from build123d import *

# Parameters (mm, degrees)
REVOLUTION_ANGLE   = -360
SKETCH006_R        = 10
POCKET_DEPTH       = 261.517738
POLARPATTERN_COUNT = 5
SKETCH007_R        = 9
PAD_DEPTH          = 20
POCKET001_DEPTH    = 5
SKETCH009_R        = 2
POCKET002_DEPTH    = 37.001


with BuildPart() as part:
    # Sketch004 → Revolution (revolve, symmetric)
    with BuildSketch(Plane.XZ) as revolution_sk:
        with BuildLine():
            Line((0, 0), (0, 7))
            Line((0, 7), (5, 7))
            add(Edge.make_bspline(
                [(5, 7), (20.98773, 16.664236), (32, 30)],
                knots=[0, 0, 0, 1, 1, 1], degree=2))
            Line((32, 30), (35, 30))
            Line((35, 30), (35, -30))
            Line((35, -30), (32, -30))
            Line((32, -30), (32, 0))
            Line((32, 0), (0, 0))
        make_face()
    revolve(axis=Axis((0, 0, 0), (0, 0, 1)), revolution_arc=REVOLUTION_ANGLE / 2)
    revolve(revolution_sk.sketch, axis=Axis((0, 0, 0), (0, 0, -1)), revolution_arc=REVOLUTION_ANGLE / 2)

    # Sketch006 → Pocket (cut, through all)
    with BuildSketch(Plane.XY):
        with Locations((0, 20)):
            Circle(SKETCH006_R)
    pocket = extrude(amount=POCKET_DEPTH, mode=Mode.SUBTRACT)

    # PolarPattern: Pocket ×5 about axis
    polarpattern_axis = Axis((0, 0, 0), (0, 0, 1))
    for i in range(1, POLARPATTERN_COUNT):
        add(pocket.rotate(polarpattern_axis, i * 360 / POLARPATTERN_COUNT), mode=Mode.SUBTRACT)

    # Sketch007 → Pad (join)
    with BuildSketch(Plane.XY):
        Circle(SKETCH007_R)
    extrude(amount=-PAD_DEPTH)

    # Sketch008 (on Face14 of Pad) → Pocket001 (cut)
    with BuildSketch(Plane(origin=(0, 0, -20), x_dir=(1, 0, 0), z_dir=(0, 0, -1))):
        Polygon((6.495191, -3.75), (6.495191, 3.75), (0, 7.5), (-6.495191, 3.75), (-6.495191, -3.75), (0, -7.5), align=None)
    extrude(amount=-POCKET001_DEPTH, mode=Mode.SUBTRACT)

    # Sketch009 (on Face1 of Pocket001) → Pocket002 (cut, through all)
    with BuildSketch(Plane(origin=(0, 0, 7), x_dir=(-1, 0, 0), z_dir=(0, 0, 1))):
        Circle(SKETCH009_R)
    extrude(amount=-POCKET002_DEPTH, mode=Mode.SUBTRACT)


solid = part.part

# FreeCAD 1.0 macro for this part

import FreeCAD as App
import Part
import Sketcher

V = App.Vector
Q = App.Units.Quantity

doc = App.newDocument("Part")
body = doc.addObject("PartDesign::Body", "Body")

sketch1 = body.newObject("Sketcher::SketchObject", "Sketch")
sketch1.AttachmentSupport = (doc.getObject("XZ_Plane"), [""])
sketch1.MapMode = "FlatFace"
sketch1.addGeometry([
    Part.LineSegment(V(0, 7, 0), V(0, 0, 0)),
    Part.LineSegment(V(0, 0, 0), V(32, 0, 0)),
    Part.LineSegment(V(32, 0, 0), V(32, -30, 0)),
    Part.LineSegment(V(32, -30, 0), V(35, -30, 0)),
    Part.LineSegment(V(35, -30, 0), V(35, 30, 0)),
    Part.LineSegment(V(35, 30, 0), V(32, 30, 0)),
    Part.BSplineCurve([V(5, 7, 0), V(20.98773, 16.664236, 0), V(32, 30, 0)], [3, 3], [0, 1], False, 2, [1, 1, 1], False),
    Part.LineSegment(V(5, 7, 0), V(0, 7, 0)),
], False)
sketch1.addConstraint([
    Sketcher.Constraint("Block", 6),
    Sketcher.Constraint("Coincident", 0, 2, 1, 1),
    Sketcher.Constraint("Coincident", 1, 2, 2, 1),
    Sketcher.Constraint("Coincident", 2, 2, 3, 1),
    Sketcher.Constraint("Coincident", 3, 2, 4, 1),
    Sketcher.Constraint("Coincident", 4, 2, 5, 1),
    Sketcher.Constraint("Coincident", 5, 2, 6, 2),
    Sketcher.Constraint("Coincident", 6, 1, 7, 1),
    Sketcher.Constraint("Coincident", 7, 2, 0, 1),
    Sketcher.Constraint("Vertical", 0),
    Sketcher.Constraint("Horizontal", 1),
    Sketcher.Constraint("Vertical", 2),
    Sketcher.Constraint("Horizontal", 3),
    Sketcher.Constraint("Vertical", 4),
    Sketcher.Constraint("Horizontal", 5),
    Sketcher.Constraint("Horizontal", 7),
    Sketcher.Constraint("Coincident", 0, 2, -1, 1),
    Sketcher.Constraint("Symmetric", 2, 2, 5, 2, -1),
    Sketcher.Constraint("DistanceX", 3, 1, 3, 2, Q("3 mm")),
])
revolution = body.newObject("PartDesign::Revolution", "Revolution")
revolution.Profile = sketch1
revolution.ReferenceAxis = (sketch1, ["V_Axis"])
revolution.Angle = 180
revolution.Reversed = True

sketch2 = body.newObject("Sketcher::SketchObject", "Sketch001")
sketch2.AttachmentSupport = (doc.getObject("XZ_Plane"), [""])
sketch2.MapMode = "FlatFace"
sketch2.addGeometry([
    Part.LineSegment(V(0, 7, 0), V(0, 0, 0)),
    Part.LineSegment(V(0, 0, 0), V(32, 0, 0)),
    Part.LineSegment(V(32, 0, 0), V(32, -30, 0)),
    Part.LineSegment(V(32, -30, 0), V(35, -30, 0)),
    Part.LineSegment(V(35, -30, 0), V(35, 30, 0)),
    Part.LineSegment(V(35, 30, 0), V(32, 30, 0)),
    Part.BSplineCurve([V(5, 7, 0), V(20.98773, 16.664236, 0), V(32, 30, 0)], [3, 3], [0, 1], False, 2, [1, 1, 1], False),
    Part.LineSegment(V(5, 7, 0), V(0, 7, 0)),
], False)
sketch2.addConstraint([
    Sketcher.Constraint("Block", 6),
    Sketcher.Constraint("Coincident", 0, 2, 1, 1),
    Sketcher.Constraint("Coincident", 1, 2, 2, 1),
    Sketcher.Constraint("Coincident", 2, 2, 3, 1),
    Sketcher.Constraint("Coincident", 3, 2, 4, 1),
    Sketcher.Constraint("Coincident", 4, 2, 5, 1),
    Sketcher.Constraint("Coincident", 5, 2, 6, 2),
    Sketcher.Constraint("Coincident", 6, 1, 7, 1),
    Sketcher.Constraint("Coincident", 7, 2, 0, 1),
    Sketcher.Constraint("Vertical", 0),
    Sketcher.Constraint("Horizontal", 1),
    Sketcher.Constraint("Vertical", 2),
    Sketcher.Constraint("Horizontal", 3),
    Sketcher.Constraint("Vertical", 4),
    Sketcher.Constraint("Horizontal", 5),
    Sketcher.Constraint("Horizontal", 7),
    Sketcher.Constraint("Coincident", 0, 2, -1, 1),
    Sketcher.Constraint("Symmetric", 2, 2, 5, 2, -1),
    Sketcher.Constraint("DistanceX", 3, 1, 3, 2, Q("3 mm")),
])
revolution2 = body.newObject("PartDesign::Revolution", "Revolution001")
revolution2.Profile = sketch2
revolution2.ReferenceAxis = (sketch2, ["V_Axis"])
revolution2.Angle = 180

sketch3 = body.newObject("Sketcher::SketchObject", "Sketch002")
sketch3.AttachmentSupport = (doc.getObject("XY_Plane"), [""])
sketch3.MapMode = "FlatFace"
sketch3.addGeometry(Part.Circle(V(0, 20, 0), V(0, 0, 1), 10), False)
sketch3.addConstraint([
    Sketcher.Constraint("PointOnObject", 0, 3, -2),
    Sketcher.Constraint("Diameter", 0, Q("20 mm")),
    Sketcher.Constraint("DistanceY", -1, 1, 0, 3, Q("20 mm")),
])
pocket1 = body.newObject("PartDesign::Pocket", "Pocket")
pocket1.Profile = sketch3
pocket1.Type = "ThroughAll"
pocket1.Reversed = True
doc.recompute()

polarpattern = body.newObject("PartDesign::PolarPattern", "PolarPattern")
polarpattern.Originals = [pocket1]
polarpattern.Axis = (doc.getObject("Z_Axis"), [""])
polarpattern.Angle = 360
polarpattern.Occurrences = 5
body.Tip = polarpattern

sketch4 = body.newObject("Sketcher::SketchObject", "Sketch003")
sketch4.AttachmentSupport = (doc.getObject("XY_Plane"), [""])
sketch4.MapMode = "FlatFace"
sketch4.addGeometry(Part.Circle(V(0, 0, 0), V(0, 0, 1), 9), False)
sketch4.addConstraint([
    Sketcher.Constraint("Coincident", 0, 3, -1, 1),
    Sketcher.Constraint("Diameter", 0, Q("18 mm")),
])
pad1 = body.newObject("PartDesign::Pad", "Pad")
pad1.Profile = sketch4
pad1.Length = 20
pad1.Reversed = True

sketch5 = body.newObject("Sketcher::SketchObject", "Sketch004")
sketch5.AttachmentSupport = (doc.getObject("XY_Plane"), [""])
sketch5.MapMode = "FlatFace"
sketch5.AttachmentOffset = App.Placement(V(0, 0, -20), App.Rotation())
sketch5.addGeometry([
    Part.LineSegment(V(6.495191, 3.75, 0), V(6.495191, -3.75, 0)),
    Part.LineSegment(V(6.495191, -3.75, 0), V(0, -7.5, 0)),
    Part.LineSegment(V(0, -7.5, 0), V(-6.495191, -3.75, 0)),
    Part.LineSegment(V(-6.495191, -3.75, 0), V(-6.495191, 3.75, 0)),
    Part.LineSegment(V(-6.495191, 3.75, 0), V(0, 7.5, 0)),
    Part.LineSegment(V(0, 7.5, 0), V(6.495191, 3.75, 0)),
], False)
sketch5.addConstraint([
    Sketcher.Constraint("Coincident", 0, 2, 1, 1),
    Sketcher.Constraint("Coincident", 1, 2, 2, 1),
    Sketcher.Constraint("Coincident", 2, 2, 3, 1),
    Sketcher.Constraint("Coincident", 3, 2, 4, 1),
    Sketcher.Constraint("Coincident", 4, 2, 5, 1),
    Sketcher.Constraint("Coincident", 5, 2, 0, 1),
    Sketcher.Constraint("Vertical", 0),
    Sketcher.Constraint("Vertical", 3),
    Sketcher.Constraint("Symmetric", 0, 2, 3, 2, -1, 1),
    Sketcher.Constraint("Symmetric", 1, 2, 4, 2, -1, 1),
    Sketcher.Constraint("PointOnObject", 1, 2, -2),
    Sketcher.Constraint("Parallel", 2, 5),
    Sketcher.Constraint("Horizontal", 0, 2, 2, 2),
    Sketcher.Constraint("Angle", 1, Q("-150.000002 deg")),
    Sketcher.Constraint("DistanceY", 0, 2, 0, 1, Q("7.5 mm")),
    Sketcher.Constraint("DistanceY", 1, 2, 4, 2, Q("15 mm")),
])
pocket2 = body.newObject("PartDesign::Pocket", "Pocket001")
pocket2.Profile = sketch5
pocket2.Length = 5
pocket2.Reversed = True

sketch6 = body.newObject("Sketcher::SketchObject", "Sketch005")
sketch6.AttachmentSupport = (doc.getObject("XY_Plane"), [""])
sketch6.MapMode = "FlatFace"
sketch6.AttachmentOffset = App.Placement(V(0, 0, 7), App.Rotation())
sketch6.addGeometry(Part.Circle(V(0, 0, 0), V(0, 0, 1), 2), False)
sketch6.addConstraint([
    Sketcher.Constraint("Coincident", 0, 3, -1, 1),
    Sketcher.Constraint("Diameter", 0, Q("4 mm")),
])
pocket3 = body.newObject("PartDesign::Pocket", "Pocket002")
pocket3.Profile = sketch6
pocket3.Type = "ThroughAll"

doc.recompute()
